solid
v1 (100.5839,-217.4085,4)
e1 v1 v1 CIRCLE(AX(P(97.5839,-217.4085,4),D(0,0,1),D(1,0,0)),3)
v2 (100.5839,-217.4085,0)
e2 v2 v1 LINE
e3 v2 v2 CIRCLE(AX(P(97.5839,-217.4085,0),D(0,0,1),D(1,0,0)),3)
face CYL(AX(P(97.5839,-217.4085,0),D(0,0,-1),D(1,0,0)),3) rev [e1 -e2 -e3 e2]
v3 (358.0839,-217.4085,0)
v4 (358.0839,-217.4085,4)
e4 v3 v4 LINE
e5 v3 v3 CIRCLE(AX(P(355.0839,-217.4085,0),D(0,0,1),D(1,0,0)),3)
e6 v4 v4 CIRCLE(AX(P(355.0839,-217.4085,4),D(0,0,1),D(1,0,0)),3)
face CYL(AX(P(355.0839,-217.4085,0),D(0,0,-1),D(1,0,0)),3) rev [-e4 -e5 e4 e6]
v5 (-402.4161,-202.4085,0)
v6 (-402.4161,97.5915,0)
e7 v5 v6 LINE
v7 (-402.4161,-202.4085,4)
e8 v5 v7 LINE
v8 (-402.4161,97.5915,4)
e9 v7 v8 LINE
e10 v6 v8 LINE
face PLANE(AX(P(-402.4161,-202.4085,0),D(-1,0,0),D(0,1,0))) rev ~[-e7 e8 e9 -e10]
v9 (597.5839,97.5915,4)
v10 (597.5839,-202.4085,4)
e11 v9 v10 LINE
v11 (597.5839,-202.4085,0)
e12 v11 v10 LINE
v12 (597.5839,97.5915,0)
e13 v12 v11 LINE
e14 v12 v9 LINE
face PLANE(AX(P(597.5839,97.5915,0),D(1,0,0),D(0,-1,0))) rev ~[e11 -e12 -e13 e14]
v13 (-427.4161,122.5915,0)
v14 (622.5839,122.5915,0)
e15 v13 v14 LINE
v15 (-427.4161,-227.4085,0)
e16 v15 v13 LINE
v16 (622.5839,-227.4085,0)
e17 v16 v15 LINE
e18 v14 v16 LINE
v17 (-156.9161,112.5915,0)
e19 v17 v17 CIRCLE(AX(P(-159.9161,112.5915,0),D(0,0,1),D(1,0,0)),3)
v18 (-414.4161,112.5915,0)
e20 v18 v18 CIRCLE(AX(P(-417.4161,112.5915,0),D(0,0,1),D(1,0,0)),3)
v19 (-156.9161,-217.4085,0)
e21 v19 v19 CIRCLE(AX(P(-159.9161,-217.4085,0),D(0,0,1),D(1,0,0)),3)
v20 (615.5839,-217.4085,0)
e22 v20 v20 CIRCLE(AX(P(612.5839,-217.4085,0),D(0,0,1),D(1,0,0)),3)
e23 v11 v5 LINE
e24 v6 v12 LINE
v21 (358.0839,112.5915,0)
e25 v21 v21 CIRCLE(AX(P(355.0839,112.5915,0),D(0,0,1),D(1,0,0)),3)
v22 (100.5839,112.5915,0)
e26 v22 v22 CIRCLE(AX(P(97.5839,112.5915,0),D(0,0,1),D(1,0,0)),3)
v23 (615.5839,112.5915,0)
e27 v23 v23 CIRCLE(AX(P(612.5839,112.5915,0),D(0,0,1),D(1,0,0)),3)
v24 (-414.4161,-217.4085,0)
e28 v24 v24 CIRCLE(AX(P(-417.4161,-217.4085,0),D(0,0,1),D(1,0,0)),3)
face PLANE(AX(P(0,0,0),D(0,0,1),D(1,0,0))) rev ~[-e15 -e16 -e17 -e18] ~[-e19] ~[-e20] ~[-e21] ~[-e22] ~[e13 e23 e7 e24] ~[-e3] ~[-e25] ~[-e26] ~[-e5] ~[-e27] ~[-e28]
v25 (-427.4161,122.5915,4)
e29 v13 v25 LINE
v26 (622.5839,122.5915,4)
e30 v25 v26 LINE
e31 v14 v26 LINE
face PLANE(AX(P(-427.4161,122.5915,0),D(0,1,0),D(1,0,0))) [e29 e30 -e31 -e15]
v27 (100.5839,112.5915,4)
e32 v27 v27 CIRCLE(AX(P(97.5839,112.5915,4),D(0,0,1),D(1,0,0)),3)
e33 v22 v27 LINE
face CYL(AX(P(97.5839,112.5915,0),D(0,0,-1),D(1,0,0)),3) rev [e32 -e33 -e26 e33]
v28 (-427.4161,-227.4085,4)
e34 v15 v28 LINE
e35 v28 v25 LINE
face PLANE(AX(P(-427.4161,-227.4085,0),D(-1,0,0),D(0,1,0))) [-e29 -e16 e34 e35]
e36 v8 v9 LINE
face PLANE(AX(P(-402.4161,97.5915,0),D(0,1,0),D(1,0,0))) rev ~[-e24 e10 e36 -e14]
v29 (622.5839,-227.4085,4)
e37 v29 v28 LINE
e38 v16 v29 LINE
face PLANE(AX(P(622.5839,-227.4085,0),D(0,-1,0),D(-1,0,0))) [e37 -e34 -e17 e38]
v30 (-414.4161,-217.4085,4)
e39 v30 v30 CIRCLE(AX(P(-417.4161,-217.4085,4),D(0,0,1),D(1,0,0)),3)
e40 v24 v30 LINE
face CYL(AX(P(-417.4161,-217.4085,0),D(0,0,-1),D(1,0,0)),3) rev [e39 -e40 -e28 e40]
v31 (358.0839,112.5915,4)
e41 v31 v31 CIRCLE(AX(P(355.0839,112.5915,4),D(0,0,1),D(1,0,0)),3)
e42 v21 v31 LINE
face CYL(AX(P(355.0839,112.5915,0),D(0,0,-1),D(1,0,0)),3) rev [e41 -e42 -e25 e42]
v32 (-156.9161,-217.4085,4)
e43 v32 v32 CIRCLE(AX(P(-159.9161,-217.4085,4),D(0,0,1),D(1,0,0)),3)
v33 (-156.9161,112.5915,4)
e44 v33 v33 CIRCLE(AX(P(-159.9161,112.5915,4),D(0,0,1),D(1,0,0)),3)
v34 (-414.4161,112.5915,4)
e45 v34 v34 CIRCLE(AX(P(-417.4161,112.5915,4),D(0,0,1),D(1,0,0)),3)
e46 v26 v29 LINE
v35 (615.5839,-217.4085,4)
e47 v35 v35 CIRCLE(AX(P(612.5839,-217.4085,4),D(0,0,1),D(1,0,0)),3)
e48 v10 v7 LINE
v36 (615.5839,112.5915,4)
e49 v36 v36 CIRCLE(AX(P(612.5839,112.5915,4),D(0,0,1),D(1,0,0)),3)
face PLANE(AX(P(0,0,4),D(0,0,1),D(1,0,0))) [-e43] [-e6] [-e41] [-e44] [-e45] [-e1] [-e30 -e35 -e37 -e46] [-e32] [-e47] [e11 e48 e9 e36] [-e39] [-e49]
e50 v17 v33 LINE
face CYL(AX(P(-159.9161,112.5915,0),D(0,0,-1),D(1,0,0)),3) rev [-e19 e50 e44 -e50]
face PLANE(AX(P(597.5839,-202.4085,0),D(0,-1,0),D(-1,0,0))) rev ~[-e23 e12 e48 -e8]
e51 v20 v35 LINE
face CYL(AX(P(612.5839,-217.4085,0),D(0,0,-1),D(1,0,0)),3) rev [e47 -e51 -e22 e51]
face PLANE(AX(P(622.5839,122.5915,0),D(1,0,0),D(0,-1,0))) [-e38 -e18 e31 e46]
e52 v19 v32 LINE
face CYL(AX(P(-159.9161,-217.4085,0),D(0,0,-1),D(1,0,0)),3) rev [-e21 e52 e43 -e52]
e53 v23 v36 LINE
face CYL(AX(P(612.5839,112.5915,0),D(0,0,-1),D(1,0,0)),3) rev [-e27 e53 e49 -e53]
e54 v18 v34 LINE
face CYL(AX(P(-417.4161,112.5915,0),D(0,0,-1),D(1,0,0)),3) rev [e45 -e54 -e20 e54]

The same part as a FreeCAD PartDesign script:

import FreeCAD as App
import Part
import Sketcher

V = App.Vector


def add_polygon(sketch, points):
    """Adds a closed chain of lines whose ends are joined by coincident constraints."""
    first, n = sketch.GeometryCount, len(points)
    for a, b in zip(points, points[1:] + points[:1]):
        sketch.addGeometry(Part.LineSegment(App.Vector(*a, 0), App.Vector(*b, 0)), False)
    for i in range(n):
        sketch.addConstraint(Sketcher.Constraint("Coincident", first + i, 2, first + (i + 1) % n, 1))

doc = App.newDocument("Part")
body = doc.addObject("PartDesign::Body", "Body")

sketch1 = doc.addObject("Sketcher::SketchObject", "Sketch")
body.addObject(sketch1)
sketch1.AttachmentSupport = (doc.XY_Plane, [""])
sketch1.MapMode = "FlatFace"
add_polygon(sketch1, [(-427.4, -227.4), (622.6, -227.4), (622.6, 122.6), (-427.4, 122.6)])
sketch1.addGeometry(Part.Circle(V(-417.4, -217.4, 0), V(0, 0, 1), 3), False)
sketch1.addGeometry(Part.Circle(V(-159.9, -217.4, 0), V(0, 0, 1), 3), False)
sketch1.addGeometry(Part.Circle(V(97.6, -217.4, 0), V(0, 0, 1), 3), False)
sketch1.addGeometry(Part.Circle(V(355.1, -217.4, 0), V(0, 0, 1), 3), False)
sketch1.addGeometry(Part.Circle(V(612.6, -217.4, 0), V(0, 0, 1), 3), False)
sketch1.addGeometry(Part.Circle(V(-417.4, 112.6, 0), V(0, 0, 1), 3), False)
sketch1.addGeometry(Part.Circle(V(-159.9, 112.6, 0), V(0, 0, 1), 3), False)
add_polygon(sketch1, [(-402.4, -202.4), (-402.4, 97.6), (597.6, 97.6), (597.6, -202.4)])
sketch1.addGeometry(Part.Circle(V(97.6, 112.6, 0), V(0, 0, 1), 3), False)
sketch1.addGeometry(Part.Circle(V(355.1, 112.6, 0), V(0, 0, 1), 3), False)
sketch1.addGeometry(Part.Circle(V(612.6, 112.6, 0), V(0, 0, 1), 3), False)
sketch1.addConstraint(Sketcher.Constraint("Horizontal", 0))
sketch1.addConstraint(Sketcher.Constraint("Vertical", 1))
sketch1.addConstraint(Sketcher.Constraint("Horizontal", 2))
sketch1.addConstraint(Sketcher.Constraint("Vertical", 3))
sketch1.addConstraint(Sketcher.Constraint("Vertical", 11))
sketch1.addConstraint(Sketcher.Constraint("Horizontal", 12))
sketch1.addConstraint(Sketcher.Constraint("Vertical", 13))
sketch1.addConstraint(Sketcher.Constraint("Horizontal", 14))
sketch1.addConstraint(Sketcher.Constraint("Equal", 4, 5))
sketch1.addConstraint(Sketcher.Constraint("Equal", 5, 6))
sketch1.addConstraint(Sketcher.Constraint("Equal", 6, 7))
sketch1.addConstraint(Sketcher.Constraint("Equal", 7, 8))
sketch1.addConstraint(Sketcher.Constraint("Equal", 8, 9))
sketch1.addConstraint(Sketcher.Constraint("Equal", 9, 10))
sketch1.addConstraint(Sketcher.Constraint("Equal", 10, 15))
sketch1.addConstraint(Sketcher.Constraint("Equal", 15, 16))
sketch1.addConstraint(Sketcher.Constraint("Equal", 16, 17))
sketch1.addConstraint(Sketcher.Constraint("Horizontal", 4, 3, 5, 3))
sketch1.addConstraint(Sketcher.Constraint("Horizontal", 5, 3, 6, 3))
sketch1.addConstraint(Sketcher.Constraint("Horizontal", 6, 3, 7, 3))
sketch1.addConstraint(Sketcher.Constraint("Horizontal", 7, 3, 8, 3))
sketch1.addConstraint(Sketcher.Constraint("Horizontal", 9, 3, 10, 3))
sketch1.addConstraint(Sketcher.Constraint("Horizontal", 10, 3, 15, 3))
sketch1.addConstraint(Sketcher.Constraint("Horizontal", 15, 3, 16, 3))
sketch1.addConstraint(Sketcher.Constraint("Horizontal", 16, 3, 17, 3))
sketch1.addConstraint(Sketcher.Constraint("Vertical", 4, 3, 9, 3))
sketch1.addConstraint(Sketcher.Constraint("Vertical", 5, 3, 10, 3))
sketch1.addConstraint(Sketcher.Constraint("Vertical", 6, 3, 15, 3))
sketch1.addConstraint(Sketcher.Constraint("Vertical", 7, 3, 16, 3))
sketch1.addConstraint(Sketcher.Constraint("Vertical", 8, 3, 17, 3))
sketch1.addConstraint(Sketcher.Constraint("DistanceX", 0, 1, 0, 2, 1050.0))
sketch1.addConstraint(Sketcher.Constraint("DistanceX", 12, 1, 12, 2, 1000.0))
sketch1.addConstraint(Sketcher.Constraint("DistanceY", 1, 1, 1, 2, 350.0))
sketch1.addConstraint(Sketcher.Constraint("DistanceY", 11, 1, 11, 2, 300.0))
sketch1.addConstraint(Sketcher.Constraint("Diameter", 4, 6.0))
sketch1.addConstraint(Sketcher.Constraint("DistanceX", 4, 3, 6, 3, 515.0))
sketch1.addConstraint(Sketcher.Constraint("DistanceX", 5, 3, 7, 3, 515.0))
sketch1.addConstraint(Sketcher.Constraint("DistanceX", 6, 3, 8, 3, 515.0))
sketch1.addConstraint(Sketcher.Constraint("DistanceY", 4, 3, 9, 3, 330.0))
sketch1.addConstraint(Sketcher.Constraint("DistanceX", 8, 3, 0, 2, 10.0))
sketch1.addConstraint(Sketcher.Constraint("DistanceY", 0, 2, 8, 3, 10.0))
sketch1.addConstraint(Sketcher.Constraint("DistanceX", 9, 3, 11, 2, 15.0))
sketch1.addConstraint(Sketcher.Constraint("DistanceY", 11, 2, 9, 3, 15.0))
sketch1.addConstraint(Sketcher.Constraint("DistanceX", 4, 3, 5, 3, 257.5))
sketch1.addConstraint(Sketcher.Constraint("DistanceX", 4, 3, -1, 1, 417.416))
sketch1.addConstraint(Sketcher.Constraint("DistanceY", 4, 3, -1, 1, 217.4085))
pad1 = doc.addObject("PartDesign::Pad", "Pad")
body.addObject(pad1)
pad1.Profile = sketch1
pad1.Length = 4

doc.recompute()
